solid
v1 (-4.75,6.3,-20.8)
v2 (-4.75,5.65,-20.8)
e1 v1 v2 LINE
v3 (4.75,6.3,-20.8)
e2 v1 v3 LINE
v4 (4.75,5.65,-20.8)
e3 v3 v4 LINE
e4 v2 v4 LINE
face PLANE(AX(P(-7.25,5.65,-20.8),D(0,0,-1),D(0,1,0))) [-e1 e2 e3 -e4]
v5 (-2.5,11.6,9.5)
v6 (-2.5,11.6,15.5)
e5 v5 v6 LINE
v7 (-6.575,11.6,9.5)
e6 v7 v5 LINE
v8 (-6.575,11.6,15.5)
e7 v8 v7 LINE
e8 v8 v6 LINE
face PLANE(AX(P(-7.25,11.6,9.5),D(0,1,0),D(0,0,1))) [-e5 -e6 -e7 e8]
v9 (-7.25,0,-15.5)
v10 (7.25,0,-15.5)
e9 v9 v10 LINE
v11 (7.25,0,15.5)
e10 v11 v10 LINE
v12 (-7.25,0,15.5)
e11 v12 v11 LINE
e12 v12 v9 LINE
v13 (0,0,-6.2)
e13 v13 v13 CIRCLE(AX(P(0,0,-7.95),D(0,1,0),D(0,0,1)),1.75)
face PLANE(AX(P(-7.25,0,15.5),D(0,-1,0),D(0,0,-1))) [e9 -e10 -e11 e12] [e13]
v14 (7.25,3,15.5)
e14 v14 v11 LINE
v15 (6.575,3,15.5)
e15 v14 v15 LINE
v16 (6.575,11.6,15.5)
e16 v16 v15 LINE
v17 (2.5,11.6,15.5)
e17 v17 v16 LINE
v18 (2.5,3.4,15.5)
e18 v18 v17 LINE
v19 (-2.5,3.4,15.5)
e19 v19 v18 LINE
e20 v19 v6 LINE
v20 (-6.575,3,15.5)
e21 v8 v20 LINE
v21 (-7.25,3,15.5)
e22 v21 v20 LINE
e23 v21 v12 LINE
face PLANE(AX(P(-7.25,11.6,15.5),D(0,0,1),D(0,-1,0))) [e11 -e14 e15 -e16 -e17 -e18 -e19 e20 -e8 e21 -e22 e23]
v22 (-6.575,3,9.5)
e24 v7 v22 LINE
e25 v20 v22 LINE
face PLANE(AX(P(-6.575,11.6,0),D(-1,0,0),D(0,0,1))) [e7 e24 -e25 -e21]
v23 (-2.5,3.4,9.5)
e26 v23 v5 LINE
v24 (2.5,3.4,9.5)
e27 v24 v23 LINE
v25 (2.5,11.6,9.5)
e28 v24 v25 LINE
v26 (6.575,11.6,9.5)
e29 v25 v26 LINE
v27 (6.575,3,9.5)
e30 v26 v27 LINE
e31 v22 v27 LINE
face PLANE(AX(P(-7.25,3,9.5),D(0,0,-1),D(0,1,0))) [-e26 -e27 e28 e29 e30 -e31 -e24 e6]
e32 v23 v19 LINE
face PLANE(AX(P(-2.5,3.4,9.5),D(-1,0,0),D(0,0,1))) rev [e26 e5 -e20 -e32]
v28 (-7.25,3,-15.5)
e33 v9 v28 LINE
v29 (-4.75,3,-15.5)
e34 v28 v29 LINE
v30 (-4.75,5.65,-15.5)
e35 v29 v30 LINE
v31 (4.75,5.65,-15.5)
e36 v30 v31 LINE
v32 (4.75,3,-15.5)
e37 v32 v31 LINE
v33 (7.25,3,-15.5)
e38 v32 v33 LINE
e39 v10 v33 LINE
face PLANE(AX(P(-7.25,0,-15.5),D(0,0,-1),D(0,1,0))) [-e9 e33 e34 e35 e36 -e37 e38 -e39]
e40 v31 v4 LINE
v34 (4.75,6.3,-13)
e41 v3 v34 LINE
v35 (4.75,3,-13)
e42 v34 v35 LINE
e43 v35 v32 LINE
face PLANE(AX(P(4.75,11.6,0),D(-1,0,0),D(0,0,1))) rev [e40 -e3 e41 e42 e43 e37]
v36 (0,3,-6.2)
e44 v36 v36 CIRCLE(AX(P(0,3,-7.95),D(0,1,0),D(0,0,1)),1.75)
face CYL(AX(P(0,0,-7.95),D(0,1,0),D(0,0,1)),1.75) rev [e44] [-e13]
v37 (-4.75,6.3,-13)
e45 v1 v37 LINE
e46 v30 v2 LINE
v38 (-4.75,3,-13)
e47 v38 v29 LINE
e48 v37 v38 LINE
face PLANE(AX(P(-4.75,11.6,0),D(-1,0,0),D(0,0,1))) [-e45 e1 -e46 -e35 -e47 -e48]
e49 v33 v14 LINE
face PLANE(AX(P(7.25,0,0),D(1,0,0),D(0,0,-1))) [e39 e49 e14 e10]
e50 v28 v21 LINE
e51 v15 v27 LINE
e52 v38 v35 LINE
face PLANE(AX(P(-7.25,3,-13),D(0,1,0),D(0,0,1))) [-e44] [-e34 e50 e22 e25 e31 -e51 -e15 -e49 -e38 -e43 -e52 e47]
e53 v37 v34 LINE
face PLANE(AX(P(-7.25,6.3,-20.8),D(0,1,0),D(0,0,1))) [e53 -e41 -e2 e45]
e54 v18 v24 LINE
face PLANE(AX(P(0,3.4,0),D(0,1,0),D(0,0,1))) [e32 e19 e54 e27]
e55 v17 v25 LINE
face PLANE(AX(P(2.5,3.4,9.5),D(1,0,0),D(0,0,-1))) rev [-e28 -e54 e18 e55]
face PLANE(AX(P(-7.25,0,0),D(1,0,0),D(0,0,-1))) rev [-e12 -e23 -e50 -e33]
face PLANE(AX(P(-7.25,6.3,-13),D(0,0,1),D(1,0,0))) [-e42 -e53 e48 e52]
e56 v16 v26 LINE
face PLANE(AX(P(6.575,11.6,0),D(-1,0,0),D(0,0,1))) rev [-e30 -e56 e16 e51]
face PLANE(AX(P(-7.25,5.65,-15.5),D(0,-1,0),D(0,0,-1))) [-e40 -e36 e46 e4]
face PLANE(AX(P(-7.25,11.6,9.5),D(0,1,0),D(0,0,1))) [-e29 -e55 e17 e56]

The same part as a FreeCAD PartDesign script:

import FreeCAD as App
import Part
import Sketcher


def add_polygon(sketch, points):
    """Adds a closed chain of lines whose ends are joined by coincident constraints."""
    first, n = sketch.GeometryCount, len(points)
    for a, b in zip(points, points[1:] + points[:1]):
        sketch.addGeometry(Part.LineSegment(App.Vector(*a, 0), App.Vector(*b, 0)), False)
    for i in range(n):
        sketch.addConstraint(Sketcher.Constraint("Coincident", first + i, 2, first + (i + 1) % n, 1))

doc = App.newDocument("Part")
params = doc.addObject("Spreadsheet::Sheet", "Params")
for row, (alias, value) in enumerate([
    ("sketch1_height", "31 mm"),
    ("sketch1_height2", "6 mm"),
    ("sketch1_width", "3.3 mm"),
    ("sketch1_width2", "8.6 mm"),
    ("sketch1_width3", "11.6 mm"),
    ("pad1_length", "7.25 mm"),
    ("pad1_length2", "7.25 mm"),
    ("sketch2_height", "6 mm"),
    ("sketch2_width", "2.5 mm"),
    ("sketch2_height2", "7.8 mm"),
    ("sketch3_width", "5 mm"),
    ("sketch3_height", "6 mm"),
    ("pocket2_length", "8.2 mm"),
    ("sketch4_diameter", "3.5 mm"),
], start=1):
    params.set(f"A{row}", alias)
    params.set(f"B{row}", "=" + value)
    params.setAlias(f"B{row}", alias)

body = doc.addObject("PartDesign::Body", "Body")

# Sketch on YZ plane
sketch1 = doc.addObject("Sketcher::SketchObject", "Sketch")
body.addObject(sketch1)
sketch1.AttachmentSupport = (doc.YZ_Plane, [""])
sketch1.MapMode = "FlatFace"
add_polygon(sketch1, [(0, 15.5), (0, -15.5), (5.65, -15.5), (5.65, -20.8), (6.3, -20.8), (6.3, -13), (3, -13), (3, 9.5), (11.6, 9.5), (11.6, 15.5)])  # lines 0-9
sketch1.addConstraint([
    Sketcher.Constraint("Vertical", 0),
    Sketcher.Constraint("Horizontal", 1),
    Sketcher.Constraint("Vertical", 2),
    Sketcher.Constraint("Horizontal", 3),
    Sketcher.Constraint("Vertical", 4),
    Sketcher.Constraint("Horizontal", 5),
    Sketcher.Constraint("Vertical", 6),
    Sketcher.Constraint("Horizontal", 7),
    Sketcher.Constraint("Vertical", 8),
    Sketcher.Constraint("Horizontal", 9),
    Sketcher.Constraint("Symmetric", 0, 2, 9, 2, -1, 1),
    Sketcher.Constraint("DistanceY", 0, 2, 0, 1, 31.0),
    Sketcher.Constraint("DistanceY", 8, 1, 8, 2, 6.0),
    Sketcher.Constraint("DistanceX", 5, 2, 5, 1, 3.3),
    Sketcher.Constraint("DistanceX", 7, 1, 7, 2, 8.6),
    Sketcher.Constraint("DistanceX", 9, 2, 9, 1, 11.6),
    Sketcher.Constraint("DistanceY", 2, 2, 2, 1, 5.3),
    Sketcher.Constraint("DistanceY", 4, 1, 4, 2, 7.8),
    Sketcher.Constraint("DistanceX", 1, 1, 1, 2, 5.65),
])
sketch1.setExpression("Constraints[21]", "Params.sketch1_height")
sketch1.setExpression("Constraints[22]", "Params.sketch1_height2")
sketch1.setExpression("Constraints[23]", "Params.sketch1_width")
sketch1.setExpression("Constraints[24]", "Params.sketch1_width2")
sketch1.setExpression("Constraints[25]", "Params.sketch1_width3")
pad1 = doc.addObject("PartDesign::Pad", "Pad")
body.addObject(pad1)
pad1.Profile = sketch1
pad1.Type = "TwoLengths"
pad1.setExpression("Length", "Params.pad1_length")
pad1.setExpression("Length2", "Params.pad1_length2")

# Sketch on XZ plane
sketch2 = doc.addObject("Sketcher::SketchObject", "Sketch001")
body.addObject(sketch2)
sketch2.AttachmentSupport = (doc.XZ_Plane, [""])
sketch2.MapMode = "FlatFace"
sketch2.AttachmentOffset = App.Placement(App.Vector(0, 0, -3), App.Rotation())
add_polygon(sketch2, [(-7.25, 9.5), (-7.25, 15.5), (-6.575, 15.5), (-6.575, 9.5)])  # lines 0-3
add_polygon(sketch2, [(6.575, 9.5), (6.575, 15.5), (7.25, 15.5), (7.25, 9.5)])  # lines 4-7
add_polygon(sketch2, [(4.75, -20.8), (4.75, -13), (7.25, -13), (7.25, -20.8)])  # lines 8-11
add_polygon(sketch2, [(-7.25, -20.8), (-7.25, -13), (-4.75, -13), (-4.75, -20.8)])  # lines 12-15
sketch2.addConstraint([
    Sketcher.Constraint("Vertical", 0),
    Sketcher.Constraint("Horizontal", 1),
    Sketcher.Constraint("Vertical", 2),
    Sketcher.Constraint("Horizontal", 3),
    Sketcher.Constraint("Vertical", 4),
    Sketcher.Constraint("Horizontal", 5),
    Sketcher.Constraint("Vertical", 6),
    Sketcher.Constraint("Horizontal", 7),
    Sketcher.Constraint("Vertical", 8),
    Sketcher.Constraint("Horizontal", 9),
    Sketcher.Constraint("Vertical", 10),
    Sketcher.Constraint("Horizontal", 11),
    Sketcher.Constraint("Vertical", 12),
    Sketcher.Constraint("Horizontal", 13),
    Sketcher.Constraint("Vertical", 14),
    Sketcher.Constraint("Horizontal", 15),
    Sketcher.Constraint("Symmetric", 1, 2, 4, 2, -2),
    Sketcher.Constraint("Symmetric", 3, 2, 6, 2, -2),
    Sketcher.Constraint("Symmetric", 9, 2, 12, 2, -2),
    Sketcher.Constraint("Symmetric", 11, 2, 14, 2, -2),
    Sketcher.Constraint("Vertical", 6, 2, 9, 2),
    Sketcher.Constraint("DistanceY", 0, 1, 0, 2, 6.0),
    Sketcher.Constraint("DistanceX", 9, 1, 9, 2, 2.5),
    Sketcher.Constraint("DistanceY", 8, 1, 8, 2, 7.8),
    Sketcher.Constraint("DistanceY", 8, 2, -1, 1, 13.0),
    Sketcher.Constraint("DistanceX", 3, 2, 8, 2, 12.0),
    Sketcher.Constraint("DistanceY", -1, 1, 0, 2, 15.5),
    Sketcher.Constraint("DistanceX", 1, 1, 1, 2, 0.675),
])
sketch2.setExpression("Constraints[37]", "Params.sketch2_height")
sketch2.setExpression("Constraints[38]", "Params.sketch2_width")
sketch2.setExpression("Constraints[39]", "Params.sketch2_height2")
pocket1 = doc.addObject("PartDesign::Pocket", "Pocket")
body.addObject(pocket1)
pocket1.Profile = sketch2
pocket1.Type = "ThroughAll"

# Sketch on XZ plane
sketch3 = doc.addObject("Sketcher::SketchObject", "Sketch002")
body.addObject(sketch3)
sketch3.AttachmentSupport = (doc.XZ_Plane, [""])
sketch3.MapMode = "FlatFace"
sketch3.AttachmentOffset = App.Placement(App.Vector(0, 0, -11.6), App.Rotation())
add_polygon(sketch3, [(-2.5, 9.5), (-2.5, 15.5), (2.5, 15.5), (2.5, 9.5)])  # lines 0-3
sketch3.addConstraint([
    Sketcher.Constraint("Vertical", 0),
    Sketcher.Constraint("Horizontal", 1),
    Sketcher.Constraint("Vertical", 2),
    Sketcher.Constraint("Horizontal", 3),
    Sketcher.Constraint("DistanceX", 1, 1, 1, 2, 5.0),
    Sketcher.Constraint("DistanceY", 0, 1, 0, 2, 6.0),
    Sketcher.Constraint("DistanceX", 0, 2, -1, 1, 2.5),
    Sketcher.Constraint("DistanceY", -1, 1, 0, 2, 15.5),
])
sketch3.setExpression("Constraints[8]", "Params.sketch3_width")
sketch3.setExpression("Constraints[9]", "Params.sketch3_height")
pocket2 = doc.addObject("PartDesign::Pocket", "Pocket001")
body.addObject(pocket2)
pocket2.Profile = sketch3
pocket2.setExpression("Length", "Params.pocket2_length")
pocket2.Reversed = True

# Sketch on XZ plane
sketch4 = doc.addObject("Sketcher::SketchObject", "Sketch003")
body.addObject(sketch4)
sketch4.AttachmentSupport = (doc.XZ_Plane, [""])
sketch4.MapMode = "FlatFace"
sketch4.AttachmentOffset = App.Placement(App.Vector(0, 0, -3), App.Rotation())
sketch4.addGeometry(Part.Circle(App.Vector(0, -7.95, 0), App.Vector(0, 0, 1), 1.75), False)
sketch4.addConstraint([
    Sketcher.Constraint("PointOnObject", 0, 3, -2),
    Sketcher.Constraint("Diameter", 0, 3.5),
    Sketcher.Constraint("DistanceY", 0, 3, -1, 1, 7.95),
])
sketch4.setExpression("Constraints[1]", "Params.sketch4_diameter")
pocket3 = doc.addObject("PartDesign::Pocket", "Pocket002")
body.addObject(pocket3)
pocket3.Profile = sketch4
pocket3.Type = "ThroughAll"
pocket3.Reversed = True

doc.recompute()
